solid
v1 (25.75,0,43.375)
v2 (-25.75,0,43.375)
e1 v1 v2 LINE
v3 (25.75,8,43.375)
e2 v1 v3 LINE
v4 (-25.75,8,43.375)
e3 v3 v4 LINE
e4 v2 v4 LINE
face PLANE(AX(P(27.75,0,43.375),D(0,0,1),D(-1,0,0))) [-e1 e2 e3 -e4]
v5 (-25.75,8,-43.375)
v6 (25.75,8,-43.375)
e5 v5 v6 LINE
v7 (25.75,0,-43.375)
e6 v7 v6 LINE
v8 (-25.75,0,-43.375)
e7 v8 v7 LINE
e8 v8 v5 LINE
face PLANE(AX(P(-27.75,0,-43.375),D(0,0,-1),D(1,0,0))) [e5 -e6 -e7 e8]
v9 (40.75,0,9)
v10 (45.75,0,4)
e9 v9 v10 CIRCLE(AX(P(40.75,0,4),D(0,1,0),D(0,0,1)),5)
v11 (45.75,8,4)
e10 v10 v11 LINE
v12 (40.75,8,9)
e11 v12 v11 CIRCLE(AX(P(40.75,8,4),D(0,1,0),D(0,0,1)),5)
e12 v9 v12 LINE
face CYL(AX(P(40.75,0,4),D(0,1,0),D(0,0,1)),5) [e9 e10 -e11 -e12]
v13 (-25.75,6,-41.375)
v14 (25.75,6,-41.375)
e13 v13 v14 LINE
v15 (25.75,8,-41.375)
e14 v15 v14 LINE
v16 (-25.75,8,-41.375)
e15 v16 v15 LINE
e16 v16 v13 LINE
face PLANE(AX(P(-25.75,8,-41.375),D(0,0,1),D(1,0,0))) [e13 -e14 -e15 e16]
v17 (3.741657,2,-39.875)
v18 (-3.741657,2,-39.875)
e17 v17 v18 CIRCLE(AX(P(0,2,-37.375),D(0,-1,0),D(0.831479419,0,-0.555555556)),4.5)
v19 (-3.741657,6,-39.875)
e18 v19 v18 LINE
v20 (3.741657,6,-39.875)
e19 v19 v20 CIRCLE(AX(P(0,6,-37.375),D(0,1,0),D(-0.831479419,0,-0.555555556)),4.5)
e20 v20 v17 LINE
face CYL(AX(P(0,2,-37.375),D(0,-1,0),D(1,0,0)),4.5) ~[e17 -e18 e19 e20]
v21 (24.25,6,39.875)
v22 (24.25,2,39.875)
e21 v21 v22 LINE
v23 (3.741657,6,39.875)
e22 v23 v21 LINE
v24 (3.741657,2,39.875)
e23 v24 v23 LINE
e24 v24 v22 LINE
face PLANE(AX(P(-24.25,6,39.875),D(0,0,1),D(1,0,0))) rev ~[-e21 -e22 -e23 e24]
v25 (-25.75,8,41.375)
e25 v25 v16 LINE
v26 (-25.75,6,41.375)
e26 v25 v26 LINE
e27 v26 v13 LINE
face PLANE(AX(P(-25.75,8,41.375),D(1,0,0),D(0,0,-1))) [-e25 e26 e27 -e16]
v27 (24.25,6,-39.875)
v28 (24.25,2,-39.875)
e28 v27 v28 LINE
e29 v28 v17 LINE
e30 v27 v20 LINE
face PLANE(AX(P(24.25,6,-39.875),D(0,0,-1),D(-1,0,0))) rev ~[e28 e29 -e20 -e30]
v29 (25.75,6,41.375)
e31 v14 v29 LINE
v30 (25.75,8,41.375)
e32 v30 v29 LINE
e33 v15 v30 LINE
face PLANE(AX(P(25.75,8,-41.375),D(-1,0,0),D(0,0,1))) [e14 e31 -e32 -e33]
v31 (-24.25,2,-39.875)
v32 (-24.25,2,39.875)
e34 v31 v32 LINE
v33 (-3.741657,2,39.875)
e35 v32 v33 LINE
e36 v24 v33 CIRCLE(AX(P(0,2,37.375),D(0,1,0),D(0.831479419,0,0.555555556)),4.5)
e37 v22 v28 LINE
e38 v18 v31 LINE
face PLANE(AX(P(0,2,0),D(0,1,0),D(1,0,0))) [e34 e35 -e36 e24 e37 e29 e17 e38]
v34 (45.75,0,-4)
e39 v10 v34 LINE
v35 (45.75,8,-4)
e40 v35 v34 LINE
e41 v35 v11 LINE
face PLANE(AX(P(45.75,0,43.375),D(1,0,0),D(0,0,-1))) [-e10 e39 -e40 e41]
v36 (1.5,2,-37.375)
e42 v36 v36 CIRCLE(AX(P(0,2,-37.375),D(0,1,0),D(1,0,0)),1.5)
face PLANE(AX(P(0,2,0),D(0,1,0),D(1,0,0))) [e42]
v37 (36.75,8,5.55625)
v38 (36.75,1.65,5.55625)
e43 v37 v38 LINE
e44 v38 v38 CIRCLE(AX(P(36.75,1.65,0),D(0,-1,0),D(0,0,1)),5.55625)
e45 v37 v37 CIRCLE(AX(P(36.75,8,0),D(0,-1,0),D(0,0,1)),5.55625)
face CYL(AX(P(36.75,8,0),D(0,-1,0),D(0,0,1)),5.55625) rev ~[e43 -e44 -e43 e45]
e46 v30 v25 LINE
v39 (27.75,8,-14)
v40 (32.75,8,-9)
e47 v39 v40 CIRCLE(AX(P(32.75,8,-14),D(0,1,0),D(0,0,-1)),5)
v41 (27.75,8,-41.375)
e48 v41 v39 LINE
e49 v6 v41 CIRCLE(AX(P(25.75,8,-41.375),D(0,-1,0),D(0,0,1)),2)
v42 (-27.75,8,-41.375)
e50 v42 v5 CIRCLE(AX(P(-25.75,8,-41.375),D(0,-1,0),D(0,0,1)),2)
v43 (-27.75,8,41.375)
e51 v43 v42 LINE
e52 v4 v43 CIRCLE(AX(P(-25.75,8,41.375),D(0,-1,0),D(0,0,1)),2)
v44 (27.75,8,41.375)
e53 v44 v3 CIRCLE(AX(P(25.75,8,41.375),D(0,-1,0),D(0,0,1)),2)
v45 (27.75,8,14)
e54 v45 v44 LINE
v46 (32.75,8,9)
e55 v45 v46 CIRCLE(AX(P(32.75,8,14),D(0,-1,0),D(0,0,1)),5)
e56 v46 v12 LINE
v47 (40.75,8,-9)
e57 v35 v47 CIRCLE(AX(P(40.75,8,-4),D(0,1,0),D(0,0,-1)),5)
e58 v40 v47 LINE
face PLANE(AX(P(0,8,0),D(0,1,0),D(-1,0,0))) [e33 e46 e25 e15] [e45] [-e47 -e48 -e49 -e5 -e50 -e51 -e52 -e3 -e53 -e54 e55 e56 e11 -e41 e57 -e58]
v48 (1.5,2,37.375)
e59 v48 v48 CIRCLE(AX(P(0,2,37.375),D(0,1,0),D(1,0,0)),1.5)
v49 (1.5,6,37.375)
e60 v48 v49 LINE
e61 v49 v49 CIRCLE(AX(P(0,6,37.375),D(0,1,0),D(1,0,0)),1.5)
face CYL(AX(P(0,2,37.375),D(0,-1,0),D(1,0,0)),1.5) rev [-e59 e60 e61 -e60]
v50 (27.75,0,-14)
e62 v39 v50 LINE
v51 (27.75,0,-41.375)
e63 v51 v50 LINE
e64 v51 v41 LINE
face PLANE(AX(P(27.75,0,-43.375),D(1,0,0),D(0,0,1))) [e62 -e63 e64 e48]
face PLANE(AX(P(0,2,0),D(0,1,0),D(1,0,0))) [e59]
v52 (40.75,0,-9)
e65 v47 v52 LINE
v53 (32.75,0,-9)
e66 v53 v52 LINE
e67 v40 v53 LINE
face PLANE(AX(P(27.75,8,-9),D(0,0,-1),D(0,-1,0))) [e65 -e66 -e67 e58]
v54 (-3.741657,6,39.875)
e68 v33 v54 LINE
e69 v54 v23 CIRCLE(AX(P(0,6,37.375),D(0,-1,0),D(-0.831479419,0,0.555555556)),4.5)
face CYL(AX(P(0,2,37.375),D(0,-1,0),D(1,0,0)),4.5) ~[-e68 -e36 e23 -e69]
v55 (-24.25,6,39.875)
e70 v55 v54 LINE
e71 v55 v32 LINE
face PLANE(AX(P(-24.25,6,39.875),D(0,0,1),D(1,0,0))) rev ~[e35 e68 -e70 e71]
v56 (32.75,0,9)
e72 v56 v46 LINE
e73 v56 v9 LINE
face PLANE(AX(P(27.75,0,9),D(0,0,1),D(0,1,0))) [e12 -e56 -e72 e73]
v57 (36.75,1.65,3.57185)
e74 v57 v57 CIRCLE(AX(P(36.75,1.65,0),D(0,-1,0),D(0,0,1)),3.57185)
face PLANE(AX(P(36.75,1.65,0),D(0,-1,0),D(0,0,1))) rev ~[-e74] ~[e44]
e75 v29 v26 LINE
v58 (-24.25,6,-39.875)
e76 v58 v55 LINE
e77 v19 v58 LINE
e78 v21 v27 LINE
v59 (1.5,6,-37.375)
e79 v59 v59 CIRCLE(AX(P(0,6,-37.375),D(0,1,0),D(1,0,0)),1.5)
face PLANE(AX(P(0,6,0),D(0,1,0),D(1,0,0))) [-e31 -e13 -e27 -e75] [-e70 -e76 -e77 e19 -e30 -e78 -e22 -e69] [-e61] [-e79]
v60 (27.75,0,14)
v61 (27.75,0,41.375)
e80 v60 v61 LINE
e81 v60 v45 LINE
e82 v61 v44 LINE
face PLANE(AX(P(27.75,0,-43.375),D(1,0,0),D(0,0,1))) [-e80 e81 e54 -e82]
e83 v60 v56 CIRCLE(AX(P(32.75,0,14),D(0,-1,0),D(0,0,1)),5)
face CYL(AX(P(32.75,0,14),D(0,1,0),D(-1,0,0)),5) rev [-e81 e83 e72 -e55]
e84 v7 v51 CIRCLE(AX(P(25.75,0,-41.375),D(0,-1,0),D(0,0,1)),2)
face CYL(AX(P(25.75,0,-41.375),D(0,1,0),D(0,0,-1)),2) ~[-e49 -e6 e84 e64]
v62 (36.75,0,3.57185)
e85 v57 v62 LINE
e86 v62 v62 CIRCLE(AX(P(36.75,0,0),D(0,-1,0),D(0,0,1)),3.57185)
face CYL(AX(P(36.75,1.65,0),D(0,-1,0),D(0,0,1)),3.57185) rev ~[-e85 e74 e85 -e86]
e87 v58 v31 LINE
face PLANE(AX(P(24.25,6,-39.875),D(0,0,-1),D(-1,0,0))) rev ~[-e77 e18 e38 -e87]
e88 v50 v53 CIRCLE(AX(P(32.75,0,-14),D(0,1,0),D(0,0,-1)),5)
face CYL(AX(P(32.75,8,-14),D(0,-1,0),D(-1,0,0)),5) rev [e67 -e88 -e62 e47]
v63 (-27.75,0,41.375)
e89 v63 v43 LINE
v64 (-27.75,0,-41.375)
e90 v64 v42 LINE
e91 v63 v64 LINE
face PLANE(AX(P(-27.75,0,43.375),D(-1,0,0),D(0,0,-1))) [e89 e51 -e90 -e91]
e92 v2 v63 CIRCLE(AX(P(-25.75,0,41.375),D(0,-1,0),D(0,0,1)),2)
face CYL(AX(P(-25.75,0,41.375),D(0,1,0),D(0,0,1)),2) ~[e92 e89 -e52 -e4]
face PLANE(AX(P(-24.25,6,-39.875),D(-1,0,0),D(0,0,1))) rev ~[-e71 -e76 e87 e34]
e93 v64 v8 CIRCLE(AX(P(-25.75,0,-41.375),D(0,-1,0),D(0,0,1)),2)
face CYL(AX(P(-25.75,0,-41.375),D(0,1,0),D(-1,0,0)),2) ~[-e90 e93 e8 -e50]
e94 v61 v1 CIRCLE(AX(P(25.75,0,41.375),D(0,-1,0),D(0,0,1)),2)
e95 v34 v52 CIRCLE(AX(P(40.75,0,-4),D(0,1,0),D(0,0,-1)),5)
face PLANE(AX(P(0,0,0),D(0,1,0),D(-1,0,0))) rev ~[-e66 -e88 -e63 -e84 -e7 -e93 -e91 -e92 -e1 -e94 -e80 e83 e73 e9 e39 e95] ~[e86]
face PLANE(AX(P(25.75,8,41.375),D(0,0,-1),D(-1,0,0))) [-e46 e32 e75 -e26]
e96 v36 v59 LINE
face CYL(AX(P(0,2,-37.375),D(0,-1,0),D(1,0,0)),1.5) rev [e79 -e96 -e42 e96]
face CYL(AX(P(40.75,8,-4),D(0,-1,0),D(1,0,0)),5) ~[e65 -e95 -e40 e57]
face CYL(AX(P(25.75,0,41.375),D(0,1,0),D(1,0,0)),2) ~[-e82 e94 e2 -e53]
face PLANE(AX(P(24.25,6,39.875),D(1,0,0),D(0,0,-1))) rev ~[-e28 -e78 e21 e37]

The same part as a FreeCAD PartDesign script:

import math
import FreeCAD as App
import Part
import Sketcher
Q = App.Units.Quantity


def edges_at(feature, points):
    """Names of the edges that pass closest to the given points."""
    edges = feature.Shape.Edges
    near = lambda p: min(range(len(edges)), key=lambda i: edges[i].distToShape(Part.Vertex(*p))[0])
    return sorted({f"Edge{near(p) + 1}" for p in points})

doc = App.newDocument("Part")
body = doc.addObject("PartDesign::Body", "Body")

# Sketch on XZ plane
sketch1 = doc.addObject("Sketcher::SketchObject", "Sketch")
body.addObject(sketch1)
sketch1.AttachmentSupport = (doc.XZ_Plane, [""])
sketch1.MapMode = "FlatFace"
sketch1.addGeometry([
    Part.LineSegment(App.Vector(-28, 43, 0), App.Vector(28, 43, 0)),
    Part.LineSegment(App.Vector(28, 43, 0), App.Vector(28, -43, 0)),
    Part.LineSegment(App.Vector(28, -43, 0), App.Vector(-28, -43, 0)),
    Part.LineSegment(App.Vector(-28, -43, 0), App.Vector(-28, 43, 0)),
], False)
sketch1.addConstraint([
    Sketcher.Constraint("Coincident", 0, 2, 1, 1),
    Sketcher.Constraint("Coincident", 1, 2, 2, 1),
    Sketcher.Constraint("Coincident", 2, 2, 3, 1),
    Sketcher.Constraint("Coincident", 3, 2, 0, 1),
    Sketcher.Constraint("Horizontal", 0),
    Sketcher.Constraint("Vertical", 1),
    Sketcher.Constraint("Horizontal", 2),
    Sketcher.Constraint("Vertical", 3),
    Sketcher.Constraint("Symmetric", 0, 2, 2, 2, -1, 1),
    Sketcher.Constraint("DistanceX", 0, 1, 0, 2, Q("55.5 mm")),
    Sketcher.Constraint("DistanceY", 1, 2, 1, 1, Q("86.75 mm")),
])
pad1 = doc.addObject("PartDesign::Pad", "Pad")
body.addObject(pad1)
pad1.Profile = sketch1
pad1.Length = 8
pad1.Reversed = True

# Sketch on XZ plane
sketch2 = doc.addObject("Sketcher::SketchObject", "Sketch001")
body.addObject(sketch2)
sketch2.AttachmentSupport = (doc.XZ_Plane, [""])
sketch2.MapMode = "FlatFace"
sketch2.AttachmentOffset = App.Placement(App.Vector(0, 0, -8), App.Rotation())
sketch2.addGeometry([
    Part.LineSegment(App.Vector(-26, 41, 0), App.Vector(26, 41, 0)),
    Part.LineSegment(App.Vector(26, 41, 0), App.Vector(26, -41, 0)),
    Part.LineSegment(App.Vector(26, -41, 0), App.Vector(-26, -41, 0)),
    Part.LineSegment(App.Vector(-26, -41, 0), App.Vector(-26, 41, 0)),
], False)
sketch2.addConstraint([
    Sketcher.Constraint("Coincident", 0, 2, 1, 1),
    Sketcher.Constraint("Coincident", 1, 2, 2, 1),
    Sketcher.Constraint("Coincident", 2, 2, 3, 1),
    Sketcher.Constraint("Coincident", 3, 2, 0, 1),
    Sketcher.Constraint("Horizontal", 0),
    Sketcher.Constraint("Vertical", 1),
    Sketcher.Constraint("Horizontal", 2),
    Sketcher.Constraint("Vertical", 3),
    Sketcher.Constraint("Symmetric", 0, 2, 2, 2, -1, 1),
    Sketcher.Constraint("DistanceX", 0, 1, 0, 2, Q("51.5 mm")),
    Sketcher.Constraint("DistanceY", 1, 2, 1, 1, Q("82.75 mm")),
])
pocket1 = doc.addObject("PartDesign::Pocket", "Pocket")
body.addObject(pocket1)
pocket1.Profile = sketch2
pocket1.Length = 2
pocket1.Reversed = True

# Sketch on XZ plane
sketch3 = doc.addObject("Sketcher::SketchObject", "Sketch002")
body.addObject(sketch3)
sketch3.AttachmentSupport = (doc.XZ_Plane, [""])
sketch3.MapMode = "FlatFace"
sketch3.AttachmentOffset = App.Placement(App.Vector(0, 0, -6), App.Rotation())
sketch3.addGeometry([
    Part.LineSegment(App.Vector(24, 40, 0), App.Vector(24, -40, 0)),
    Part.LineSegment(App.Vector(24, -40, 0), App.Vector(-24, -40, 0)),
    Part.LineSegment(App.Vector(-24, -40, 0), App.Vector(-24, 40, 0)),
    Part.LineSegment(App.Vector(-24, 40, 0), App.Vector(24, 40, 0)),
], False)
sketch3.addConstraint([
    Sketcher.Constraint("Coincident", 0, 2, 1, 1),
    Sketcher.Constraint("Coincident", 1, 2, 2, 1),
    Sketcher.Constraint("Coincident", 2, 2, 3, 1),
    Sketcher.Constraint("Coincident", 3, 2, 0, 1),
    Sketcher.Constraint("Vertical", 0),
    Sketcher.Constraint("Horizontal", 1),
    Sketcher.Constraint("Vertical", 2),
    Sketcher.Constraint("Horizontal", 3),
    Sketcher.Constraint("Symmetric", 0, 2, 2, 2, -1, 1),
    Sketcher.Constraint("DistanceX", 1, 2, 1, 1, Q("48.5 mm")),
    Sketcher.Constraint("DistanceY", 0, 2, 0, 1, Q("79.75 mm")),
])
pocket2 = doc.addObject("PartDesign::Pocket", "Pocket001")
body.addObject(pocket2)
pocket2.Profile = sketch3
pocket2.Length = 4
pocket2.Reversed = True

# Sketch on XZ plane
sketch4 = doc.addObject("Sketcher::SketchObject", "Sketch003")
body.addObject(sketch4)
sketch4.AttachmentSupport = (doc.XZ_Plane, [""])
sketch4.MapMode = "FlatFace"
sketch4.AttachmentOffset = App.Placement(App.Vector(0, 0, -2), App.Rotation())
sketch4.addGeometry([
    Part.ArcOfCircle(Part.Circle(App.Vector(0, 37.4, 0), App.Vector(0, 0, 1), 4.5), math.radians(146), math.radians(394)),  # 0
    Part.LineSegment(App.Vector(-3.7, 39.9, 0), App.Vector(3.7, 39.9, 0)),  # 1
    Part.Circle(App.Vector(0, 37.4, 0), App.Vector(0, 0, 1), 1.5),  # 2
    Part.Circle(App.Vector(0, -37.4, 0), App.Vector(0, 0, 1), 4.5),  # 3
    Part.Circle(App.Vector(0, -37.4, 0), App.Vector(0, 0, 1), 1.5),  # 4
], False)
sketch4.addConstraint([
    Sketcher.Constraint("Coincident", 0, 1, 1, 1),
    Sketcher.Constraint("Coincident", 1, 2, 0, 2),
    Sketcher.Constraint("Horizontal", 1),
    Sketcher.Constraint("Coincident", 2, 3, 0, 3),
    Sketcher.Constraint("Coincident", 4, 3, 3, 3),
    Sketcher.Constraint("Equal", 0, 3),
    Sketcher.Constraint("Equal", 2, 4),
    Sketcher.Constraint("Symmetric", 0, 3, 3, 3, -1, 1),
    Sketcher.Constraint("PointOnObject", 0, 3, -2),
    Sketcher.Constraint("Diameter", 2, Q("3 mm")),
    Sketcher.Constraint("Diameter", 3, Q("9 mm")),
    Sketcher.Constraint("DistanceY", 3, 3, 0, 3, Q("74.75 mm")),
    Sketcher.Constraint("DistanceY", 0, 3, 0, 1, Q("2.5 mm")),
])
pad2 = doc.addObject("PartDesign::Pad", "Pad001")
body.addObject(pad2)
pad2.Profile = sketch4
pad2.Length = 4
pad2.Reversed = True

# Sketch on YZ plane
sketch5 = doc.addObject("Sketcher::SketchObject", "Sketch004")
body.addObject(sketch5)
sketch5.AttachmentSupport = (doc.YZ_Plane, [""])
sketch5.MapMode = "FlatFace"
sketch5.AttachmentOffset = App.Placement(App.Vector(0, 0, 27.75), App.Rotation())
sketch5.addGeometry([
    Part.LineSegment(App.Vector(0, -9, 0), App.Vector(8, -9, 0)),
    Part.LineSegment(App.Vector(8, -9, 0), App.Vector(8, 9, 0)),
    Part.LineSegment(App.Vector(8, 9, 0), App.Vector(0, 9, 0)),
    Part.LineSegment(App.Vector(0, 9, 0), App.Vector(0, -9, 0)),
], False)
sketch5.addConstraint([
    Sketcher.Constraint("Coincident", 0, 2, 1, 1),
    Sketcher.Constraint("Coincident", 1, 2, 2, 1),
    Sketcher.Constraint("Coincident", 2, 2, 3, 1),
    Sketcher.Constraint("Coincident", 3, 2, 0, 1),
    Sketcher.Constraint("Horizontal", 0),
    Sketcher.Constraint("Vertical", 1),
    Sketcher.Constraint("Horizontal", 2),
    Sketcher.Constraint("Vertical", 3),
    Sketcher.Constraint("Symmetric", 2, 2, 3, 2, -1, 1),
    Sketcher.Constraint("DistanceY", 1, 1, 1, 2, Q("18 mm")),
    Sketcher.Constraint("DistanceX", 0, 1, 0, 2, Q("8 mm")),
])
pad3 = doc.addObject("PartDesign::Pad", "Pad002")
body.addObject(pad3)
pad3.Profile = sketch5
pad3.Length = 18

# Sketch on XZ plane
sketch6 = doc.addObject("Sketcher::SketchObject", "Sketch005")
body.addObject(sketch6)
sketch6.AttachmentSupport = (doc.XZ_Plane, [""])
sketch6.MapMode = "FlatFace"
sketch6.AttachmentOffset = App.Placement(App.Vector(0, 0, -8), App.Rotation())
sketch6.addGeometry(Part.Circle(App.Vector(36.8, 0, 0), App.Vector(0, 0, 1), 3.6), False)
sketch6.addConstraint([
    Sketcher.Constraint("PointOnObject", 0, 3, -1),
    Sketcher.Constraint("Diameter", 0, Q("7.1437 mm")),
    Sketcher.Constraint("DistanceX", -1, 1, 0, 3, Q("36.75 mm")),
])
doc.recompute()
hole = doc.addObject("PartDesign::Hole", "Hole")
body.addObject(hole)
hole.Profile = sketch6
hole.ThreadType = "None"
hole.Diameter = 7.1437
hole.DepthType = "ThroughAll"
hole.HoleCutType = "Counterbore"
hole.HoleCutDiameter = 11.1125
hole.HoleCutDepth = 6.35
hole.Reversed = True
doc.recompute()

fillet = doc.addObject("PartDesign::Fillet", "Fillet")
body.addObject(fillet)
fillet.Base = (hole, edges_at(hole, [
    (27.75, 4, 9),
    (45.75, 4, 9),
    (45.75, 4, -9),
    (27.75, 4, -9),
]))
fillet.Radius = 5
doc.recompute()

fillet2 = doc.addObject("PartDesign::Fillet", "Fillet001")
body.addObject(fillet2)
fillet2.Base = (fillet, edges_at(fillet, [
    (27.75, 4, 43.375),
    (27.75, 4, -43.375),
    (-27.75, 4, -43.375),
    (-27.75, 4, 43.375),
]))
fillet2.Radius = 2

doc.recompute()
